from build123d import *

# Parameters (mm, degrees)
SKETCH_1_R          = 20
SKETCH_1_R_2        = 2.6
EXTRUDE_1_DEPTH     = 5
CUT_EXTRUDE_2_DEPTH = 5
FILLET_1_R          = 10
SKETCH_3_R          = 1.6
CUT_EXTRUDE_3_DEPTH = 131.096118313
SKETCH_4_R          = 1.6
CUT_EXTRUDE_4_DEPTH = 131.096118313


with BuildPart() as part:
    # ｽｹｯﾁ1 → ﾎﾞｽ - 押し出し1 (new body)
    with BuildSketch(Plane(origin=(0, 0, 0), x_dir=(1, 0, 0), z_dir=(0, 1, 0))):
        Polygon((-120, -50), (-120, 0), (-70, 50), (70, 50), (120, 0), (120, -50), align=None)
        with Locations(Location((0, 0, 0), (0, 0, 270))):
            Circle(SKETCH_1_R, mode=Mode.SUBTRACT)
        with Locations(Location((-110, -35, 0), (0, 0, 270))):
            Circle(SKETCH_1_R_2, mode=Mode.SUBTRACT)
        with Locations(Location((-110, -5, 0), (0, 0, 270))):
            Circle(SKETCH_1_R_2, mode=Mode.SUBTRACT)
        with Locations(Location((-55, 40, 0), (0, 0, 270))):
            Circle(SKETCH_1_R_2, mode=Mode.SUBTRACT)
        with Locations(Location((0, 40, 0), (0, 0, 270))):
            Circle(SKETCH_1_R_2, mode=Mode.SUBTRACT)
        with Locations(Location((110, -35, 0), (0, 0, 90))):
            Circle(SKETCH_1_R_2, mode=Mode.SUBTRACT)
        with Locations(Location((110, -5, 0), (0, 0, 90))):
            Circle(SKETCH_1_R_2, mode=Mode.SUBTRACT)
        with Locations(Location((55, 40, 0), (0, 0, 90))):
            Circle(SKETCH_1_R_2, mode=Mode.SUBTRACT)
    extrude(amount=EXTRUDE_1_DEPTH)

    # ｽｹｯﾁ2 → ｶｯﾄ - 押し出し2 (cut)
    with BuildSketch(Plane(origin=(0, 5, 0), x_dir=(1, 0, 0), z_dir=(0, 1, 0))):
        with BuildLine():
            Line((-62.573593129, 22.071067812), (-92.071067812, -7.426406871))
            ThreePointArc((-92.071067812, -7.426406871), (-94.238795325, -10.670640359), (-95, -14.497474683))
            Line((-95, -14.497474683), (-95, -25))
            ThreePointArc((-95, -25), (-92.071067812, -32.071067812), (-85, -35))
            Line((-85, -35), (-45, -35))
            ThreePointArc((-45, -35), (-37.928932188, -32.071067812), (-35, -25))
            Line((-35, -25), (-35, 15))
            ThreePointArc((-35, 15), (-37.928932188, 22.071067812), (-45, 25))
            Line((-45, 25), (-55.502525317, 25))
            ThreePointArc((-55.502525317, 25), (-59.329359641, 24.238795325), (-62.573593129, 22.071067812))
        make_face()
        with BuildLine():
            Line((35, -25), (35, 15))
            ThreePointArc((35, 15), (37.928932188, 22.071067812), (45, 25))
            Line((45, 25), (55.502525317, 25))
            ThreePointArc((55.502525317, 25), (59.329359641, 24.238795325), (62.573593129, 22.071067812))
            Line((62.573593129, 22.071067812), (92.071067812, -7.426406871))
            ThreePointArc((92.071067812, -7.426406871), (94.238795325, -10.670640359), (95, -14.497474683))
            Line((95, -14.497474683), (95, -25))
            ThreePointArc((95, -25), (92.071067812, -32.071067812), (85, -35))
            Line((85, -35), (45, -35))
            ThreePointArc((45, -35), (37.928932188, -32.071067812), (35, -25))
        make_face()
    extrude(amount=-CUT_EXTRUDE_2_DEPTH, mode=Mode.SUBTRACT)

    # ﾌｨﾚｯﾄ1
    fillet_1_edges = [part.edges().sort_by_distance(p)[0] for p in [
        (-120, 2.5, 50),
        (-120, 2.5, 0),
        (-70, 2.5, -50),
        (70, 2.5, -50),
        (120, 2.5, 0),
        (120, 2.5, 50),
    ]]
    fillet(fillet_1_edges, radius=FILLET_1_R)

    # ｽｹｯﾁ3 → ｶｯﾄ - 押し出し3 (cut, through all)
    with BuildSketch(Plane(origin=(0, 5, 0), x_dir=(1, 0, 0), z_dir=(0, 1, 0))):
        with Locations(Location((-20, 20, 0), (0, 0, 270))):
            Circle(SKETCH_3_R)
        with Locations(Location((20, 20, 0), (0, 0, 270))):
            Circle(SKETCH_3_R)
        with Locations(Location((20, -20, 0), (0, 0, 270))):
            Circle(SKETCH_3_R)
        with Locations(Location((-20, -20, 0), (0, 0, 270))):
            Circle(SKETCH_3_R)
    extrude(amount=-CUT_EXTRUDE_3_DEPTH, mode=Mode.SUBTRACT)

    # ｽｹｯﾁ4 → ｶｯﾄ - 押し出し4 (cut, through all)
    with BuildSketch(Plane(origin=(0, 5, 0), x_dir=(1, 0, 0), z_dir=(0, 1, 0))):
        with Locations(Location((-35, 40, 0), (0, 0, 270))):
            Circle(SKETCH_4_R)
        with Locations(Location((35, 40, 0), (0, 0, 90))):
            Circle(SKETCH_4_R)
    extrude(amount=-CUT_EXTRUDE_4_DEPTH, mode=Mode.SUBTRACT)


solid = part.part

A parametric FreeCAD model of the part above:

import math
import FreeCAD as App
import Part
import Sketcher

V = App.Vector


def edges_at(feature, points):
    """Names of the edges that pass closest to the given points."""
    edges = feature.Shape.Edges
    near = lambda p: min(range(len(edges)), key=lambda i: edges[i].distToShape(Part.Vertex(*p))[0])
    return sorted({f"Edge{near(p) + 1}" for p in points})

doc = App.newDocument("Part")
body = doc.addObject("PartDesign::Body", "Body")

sketch1 = body.newObject("Sketcher::SketchObject", "Sketch")
sketch1.AttachmentSupport = (doc.getObject("XZ_Plane"), [""])
sketch1.MapMode = "FlatFace"
sketch1.addGeometry(Part.LineSegment(V(-120, 0, 0), V(-120, 50, 0)), False)
sketch1.addGeometry(Part.LineSegment(V(-120, 50, 0), V(120, 50, 0)), False)
sketch1.addGeometry(Part.LineSegment(V(120, 50, 0), V(120, 0, 0)), False)
sketch1.addGeometry(Part.LineSegment(V(120, 0, 0), V(70, -50, 0)), False)
sketch1.addGeometry(Part.LineSegment(V(70, -50, 0), V(-70, -50, 0)), False)
sketch1.addGeometry(Part.LineSegment(V(-70, -50, 0), V(-120, 0, 0)), False)
sketch1.addGeometry(Part.Circle(V(110, 35, 0), V(0, 0, 1), 2.6), False)
sketch1.addGeometry(Part.Circle(V(110, 5, 0), V(0, 0, 1), 2.6), False)
sketch1.addGeometry(Part.Circle(V(-110, 35, 0), V(0, 0, 1), 2.6), False)
sketch1.addGeometry(Part.Circle(V(0, 0, 0), V(0, 0, 1), 20), False)
sketch1.addGeometry(Part.Circle(V(-110, 5, 0), V(0, 0, 1), 2.6), False)
sketch1.addGeometry(Part.Circle(V(55, -40, 0), V(0, 0, 1), 2.6), False)
sketch1.addGeometry(Part.Circle(V(0, -40, 0), V(0, 0, 1), 2.6), False)
sketch1.addGeometry(Part.Circle(V(-55, -40, 0), V(0, 0, 1), 2.6), False)
sketch1.addConstraint(Sketcher.Constraint("Coincident", 0, 2, 1, 1))
sketch1.addConstraint(Sketcher.Constraint("Coincident", 1, 2, 2, 1))
sketch1.addConstraint(Sketcher.Constraint("Coincident", 2, 2, 3, 1))
sketch1.addConstraint(Sketcher.Constraint("Coincident", 3, 2, 4, 1))
sketch1.addConstraint(Sketcher.Constraint("Coincident", 4, 2, 5, 1))
sketch1.addConstraint(Sketcher.Constraint("Coincident", 5, 2, 0, 1))
sketch1.addConstraint(Sketcher.Constraint("Vertical", 0))
sketch1.addConstraint(Sketcher.Constraint("Horizontal", 1))
sketch1.addConstraint(Sketcher.Constraint("Vertical", 2))
sketch1.addConstraint(Sketcher.Constraint("Horizontal", 4))
sketch1.addConstraint(Sketcher.Constraint("Coincident", 9, 3, -1, 1))
sketch1.addConstraint(Sketcher.Constraint("Equal", 6, 7))
sketch1.addConstraint(Sketcher.Constraint("Equal", 7, 8))
sketch1.addConstraint(Sketcher.Constraint("Equal", 8, 10))
sketch1.addConstraint(Sketcher.Constraint("Equal", 10, 11))
sketch1.addConstraint(Sketcher.Constraint("Equal", 11, 12))
sketch1.addConstraint(Sketcher.Constraint("Equal", 12, 13))
sketch1.addConstraint(Sketcher.Constraint("Symmetric", 2, 2, 5, 2, -1, 1))
sketch1.addConstraint(Sketcher.Constraint("Symmetric", 6, 3, 8, 3, -2))
sketch1.addConstraint(Sketcher.Constraint("Symmetric", 7, 3, 10, 3, -2))
sketch1.addConstraint(Sketcher.Constraint("Symmetric", 11, 3, 13, 3, -2))
sketch1.addConstraint(Sketcher.Constraint("PointOnObject", 12, 3, -2))
sketch1.addConstraint(Sketcher.Constraint("PointOnObject", 2, 2, -1))
sketch1.addConstraint(Sketcher.Constraint("Perpendicular", 3, 5))
sketch1.addConstraint(Sketcher.Constraint("Horizontal", 11, 3, 12, 3))
sketch1.addConstraint(Sketcher.Constraint("Vertical", 6, 3, 7, 3))
sketch1.addConstraint(Sketcher.Constraint("Equal", 3, 5))
sketch1.addConstraint(Sketcher.Constraint("Diameter", 9, 40.0))
sketch1.addConstraint(Sketcher.Constraint("Diameter", 6, 5.2))
sketch1.addConstraint(Sketcher.Constraint("DistanceX", 1, 1, 1, 2, 240.0))
sketch1.addConstraint(Sketcher.Constraint("DistanceX", 4, 2, 4, 1, 140.0))
sketch1.addConstraint(Sketcher.Constraint("DistanceY", 0, 1, 0, 2, 50.0))
sketch1.addConstraint(Sketcher.Constraint("DistanceX", -1, 1, 6, 3, 110.0))
sketch1.addConstraint(Sketcher.Constraint("DistanceY", -1, 1, 6, 3, 35.0))
sketch1.addConstraint(Sketcher.Constraint("DistanceY", -1, 1, 7, 3, 5.0))
sketch1.addConstraint(Sketcher.Constraint("DistanceX", -1, 1, 11, 3, 55.0))
sketch1.addConstraint(Sketcher.Constraint("DistanceY", 11, 3, -1, 1, 40.0))
pad1 = body.newObject("PartDesign::Pad", "Pad")
pad1.Profile = sketch1
pad1.Length = 5
pad1.Reversed = True

sketch2 = body.newObject("Sketcher::SketchObject", "Sketch001")
sketch2.AttachmentSupport = (doc.getObject("XZ_Plane"), [""])
sketch2.MapMode = "FlatFace"
sketch2.AttachmentOffset = App.Placement(V(0, 0, -5), App.Rotation())
sketch2.addGeometry(Part.LineSegment(V(-63, -22, 0), V(-92, 7, 0)), False)
sketch2.addGeometry(Part.ArcOfCircle(Part.Circle(V(-85, 14, 0), V(0, 0, 1), 10), math.radians(180), math.radians(225)), False)
sketch2.addGeometry(Part.LineSegment(V(-95, 14, 0), V(-95, 25, 0)), False)
sketch2.addGeometry(Part.ArcOfCircle(Part.Circle(V(-85, 25, 0), V(0, 0, 1), 10), math.radians(90), math.radians(180)), False)
sketch2.addGeometry(Part.LineSegment(V(-85, 35, 0), V(-45, 35, 0)), False)
sketch2.addGeometry(Part.ArcOfCircle(Part.Circle(V(-45, 25, 0), V(0, 0, 1), 10), math.radians(0), math.radians(90)), False)
sketch2.addGeometry(Part.LineSegment(V(-35, 25, 0), V(-35, -15, 0)), False)
sketch2.addGeometry(Part.ArcOfCircle(Part.Circle(V(-45, -15, 0), V(0, 0, 1), 10), math.radians(-90), math.radians(0)), False)
sketch2.addGeometry(Part.LineSegment(V(-45, -25, 0), V(-56, -25, 0)), False)
sketch2.addGeometry(Part.ArcOfCircle(Part.Circle(V(-56, -15, 0), V(0, 0, 1), 10), math.radians(-135), math.radians(-90)), False)
sketch2.addGeometry(Part.LineSegment(V(35, -15, 0), V(35, 25, 0)), False)
sketch2.addGeometry(Part.ArcOfCircle(Part.Circle(V(45, 25, 0), V(0, 0, 1), 10), math.radians(90), math.radians(180)), False)
sketch2.addGeometry(Part.LineSegment(V(45, 35, 0), V(85, 35, 0)), False)
sketch2.addGeometry(Part.ArcOfCircle(Part.Circle(V(85, 25, 0), V(0, 0, 1), 10), math.radians(0), math.radians(90)), False)
sketch2.addGeometry(Part.LineSegment(V(95, 25, 0), V(95, 14, 0)), False)
sketch2.addGeometry(Part.ArcOfCircle(Part.Circle(V(85, 14, 0), V(0, 0, 1), 10), math.radians(-45), math.radians(0)), False)
sketch2.addGeometry(Part.LineSegment(V(92, 7, 0), V(63, -22, 0)), False)
sketch2.addGeometry(Part.ArcOfCircle(Part.Circle(V(56, -15, 0), V(0, 0, 1), 10), math.radians(-90), math.radians(-45)), False)
sketch2.addGeometry(Part.LineSegment(V(56, -25, 0), V(45, -25, 0)), False)
sketch2.addGeometry(Part.ArcOfCircle(Part.Circle(V(45, -15, 0), V(0, 0, 1), 10), math.radians(180), math.radians(270)), False)
sketch2.addConstraint(Sketcher.Constraint("Tangent", 0, 2, 1, 2))
sketch2.addConstraint(Sketcher.Constraint("Tangent", 1, 1, 2, 1))
sketch2.addConstraint(Sketcher.Constraint("Tangent", 2, 2, 3, 2))
sketch2.addConstraint(Sketcher.Constraint("Tangent", 3, 1, 4, 1))
sketch2.addConstraint(Sketcher.Constraint("Tangent", 4, 2, 5, 2))
sketch2.addConstraint(Sketcher.Constraint("Tangent", 5, 1, 6, 1))
sketch2.addConstraint(Sketcher.Constraint("Tangent", 6, 2, 7, 2))
sketch2.addConstraint(Sketcher.Constraint("Tangent", 7, 1, 8, 1))
sketch2.addConstraint(Sketcher.Constraint("Tangent", 8, 2, 9, 2))
sketch2.addConstraint(Sketcher.Constraint("Tangent", 9, 1, 0, 1))
sketch2.addConstraint(Sketcher.Constraint("Tangent", 10, 2, 11, 2))
sketch2.addConstraint(Sketcher.Constraint("Tangent", 11, 1, 12, 1))
sketch2.addConstraint(Sketcher.Constraint("Tangent", 12, 2, 13, 2))
sketch2.addConstraint(Sketcher.Constraint("Tangent", 13, 1, 14, 1))
sketch2.addConstraint(Sketcher.Constraint("Tangent", 14, 2, 15, 2))
sketch2.addConstraint(Sketcher.Constraint("Tangent", 15, 1, 16, 1))
sketch2.addConstraint(Sketcher.Constraint("Tangent", 16, 2, 17, 2))
sketch2.addConstraint(Sketcher.Constraint("Tangent", 17, 1, 18, 1))
sketch2.addConstraint(Sketcher.Constraint("Tangent", 18, 2, 19, 2))
sketch2.addConstraint(Sketcher.Constraint("Tangent", 19, 1, 10, 1))
sketch2.addConstraint(Sketcher.Constraint("Vertical", 2))
sketch2.addConstraint(Sketcher.Constraint("Horizontal", 4))
sketch2.addConstraint(Sketcher.Constraint("Vertical", 6))
sketch2.addConstraint(Sketcher.Constraint("Horizontal", 8))
sketch2.addConstraint(Sketcher.Constraint("Vertical", 10))
sketch2.addConstraint(Sketcher.Constraint("Horizontal", 12))
sketch2.addConstraint(Sketcher.Constraint("Vertical", 14))
sketch2.addConstraint(Sketcher.Constraint("Horizontal", 18))
sketch2.addConstraint(Sketcher.Constraint("Equal", 1, 3))
sketch2.addConstraint(Sketcher.Constraint("Equal", 3, 5))
sketch2.addConstraint(Sketcher.Constraint("Equal", 5, 7))
sketch2.addConstraint(Sketcher.Constraint("Equal", 7, 9))
sketch2.addConstraint(Sketcher.Constraint("Equal", 9, 11))
sketch2.addConstraint(Sketcher.Constraint("Equal", 11, 13))
sketch2.addConstraint(Sketcher.Constraint("Equal", 13, 15))
sketch2.addConstraint(Sketcher.Constraint("Equal", 15, 17))
sketch2.addConstraint(Sketcher.Constraint("Equal", 17, 19))
sketch2.addConstraint(Sketcher.Constraint("Symmetric", 5, 3, 11, 3, -2))
sketch2.addConstraint(Sketcher.Constraint("Symmetric", 1, 3, 15, 3, -2))
sketch2.addConstraint(Sketcher.Constraint("Symmetric", 9, 3, 17, 3, -2))
sketch2.addConstraint(Sketcher.Constraint("Perpendicular", 0, 16))
sketch2.addConstraint(Sketcher.Constraint("Equal", 18, 2))
sketch2.addConstraint(Sketcher.Constraint("Radius", 1, 10.0))
sketch2.addConstraint(Sketcher.Constraint("DistanceX", 4, 1, 4, 2, 40.0))
sketch2.addConstraint(Sketcher.Constraint("DistanceX", 1, 3, -1, 1, 85.0))
sketch2.addConstraint(Sketcher.Constraint("DistanceY", -1, 1, 3, 3, 25.0))
sketch2.addConstraint(Sketcher.Constraint("Distance", 0, 41.715729))
pocket1 = body.newObject("PartDesign::Pocket", "Pocket")
pocket1.Profile = sketch2
pocket1.Length = 5
pocket1.Reversed = True
doc.recompute()

fillet = body.newObject("PartDesign::Fillet", "Fillet")
fillet.Base = (pocket1, edges_at(pocket1, [
    (-120, 2.5, 50),
    (-120, 2.5, 0),
    (-70, 2.5, -50),
    (70, 2.5, -50),
    (120, 2.5, 0),
    (120, 2.5, 50),
]))
fillet.Radius = 10

sketch3 = body.newObject("Sketcher::SketchObject", "Sketch002")
sketch3.AttachmentSupport = (doc.getObject("XZ_Plane"), [""])
sketch3.MapMode = "FlatFace"
sketch3.AttachmentOffset = App.Placement(V(0, 0, -5), App.Rotation())
sketch3.addGeometry(Part.Circle(V(-20, -20, 0), V(0, 0, 1), 1.6), False)
sketch3.addGeometry(Part.Circle(V(20, -20, 0), V(0, 0, 1), 1.6), False)
sketch3.addGeometry(Part.Circle(V(20, 20, 0), V(0, 0, 1), 1.6), False)
sketch3.addGeometry(Part.Circle(V(-20, 20, 0), V(0, 0, 1), 1.6), False)
sketch3.addConstraint(Sketcher.Constraint("Equal", 0, 1))
sketch3.addConstraint(Sketcher.Constraint("Equal", 1, 2))
sketch3.addConstraint(Sketcher.Constraint("Equal", 2, 3))
sketch3.addConstraint(Sketcher.Constraint("Symmetric", 0, 3, 2, 3, -1, 1))
sketch3.addConstraint(Sketcher.Constraint("Symmetric", 1, 3, 3, 3, -1, 1))
sketch3.addConstraint(Sketcher.Constraint("Symmetric", 0, 3, 1, 3, -2))
sketch3.addConstraint(Sketcher.Constraint("Diameter", 0, 3.2))
sketch3.addConstraint(Sketcher.Constraint("DistanceX", 0, 3, -1, 1, 20.0))
sketch3.addConstraint(Sketcher.Constraint("DistanceY", 0, 3, -1, 1, 20.0))
pocket2 = body.newObject("PartDesign::Pocket", "Pocket001")
pocket2.Profile = sketch3
pocket2.Type = "ThroughAll"
pocket2.Reversed = True

sketch4 = body.newObject("Sketcher::SketchObject", "Sketch003")
sketch4.AttachmentSupport = (doc.getObject("XZ_Plane"), [""])
sketch4.MapMode = "FlatFace"
sketch4.AttachmentOffset = App.Placement(V(0, 0, -5), App.Rotation())
sketch4.addGeometry(Part.Circle(V(-35, -40, 0), V(0, 0, 1), 1.6), False)
sketch4.addGeometry(Part.Circle(V(35, -40, 0), V(0, 0, 1), 1.6), False)
sketch4.addConstraint(Sketcher.Constraint("Equal", 0, 1))
sketch4.addConstraint(Sketcher.Constraint("Symmetric", 0, 3, 1, 3, -2))
sketch4.addConstraint(Sketcher.Constraint("Diameter", 0, 3.2))
sketch4.addConstraint(Sketcher.Constraint("DistanceX", 0, 3, -1, 1, 35.0))
sketch4.addConstraint(Sketcher.Constraint("DistanceY", 0, 3, -1, 1, 40.0))
pocket3 = body.newObject("PartDesign::Pocket", "Pocket002")
pocket3.Profile = sketch4
pocket3.Type = "ThroughAll"
pocket3.Reversed = True

doc.recompute()
